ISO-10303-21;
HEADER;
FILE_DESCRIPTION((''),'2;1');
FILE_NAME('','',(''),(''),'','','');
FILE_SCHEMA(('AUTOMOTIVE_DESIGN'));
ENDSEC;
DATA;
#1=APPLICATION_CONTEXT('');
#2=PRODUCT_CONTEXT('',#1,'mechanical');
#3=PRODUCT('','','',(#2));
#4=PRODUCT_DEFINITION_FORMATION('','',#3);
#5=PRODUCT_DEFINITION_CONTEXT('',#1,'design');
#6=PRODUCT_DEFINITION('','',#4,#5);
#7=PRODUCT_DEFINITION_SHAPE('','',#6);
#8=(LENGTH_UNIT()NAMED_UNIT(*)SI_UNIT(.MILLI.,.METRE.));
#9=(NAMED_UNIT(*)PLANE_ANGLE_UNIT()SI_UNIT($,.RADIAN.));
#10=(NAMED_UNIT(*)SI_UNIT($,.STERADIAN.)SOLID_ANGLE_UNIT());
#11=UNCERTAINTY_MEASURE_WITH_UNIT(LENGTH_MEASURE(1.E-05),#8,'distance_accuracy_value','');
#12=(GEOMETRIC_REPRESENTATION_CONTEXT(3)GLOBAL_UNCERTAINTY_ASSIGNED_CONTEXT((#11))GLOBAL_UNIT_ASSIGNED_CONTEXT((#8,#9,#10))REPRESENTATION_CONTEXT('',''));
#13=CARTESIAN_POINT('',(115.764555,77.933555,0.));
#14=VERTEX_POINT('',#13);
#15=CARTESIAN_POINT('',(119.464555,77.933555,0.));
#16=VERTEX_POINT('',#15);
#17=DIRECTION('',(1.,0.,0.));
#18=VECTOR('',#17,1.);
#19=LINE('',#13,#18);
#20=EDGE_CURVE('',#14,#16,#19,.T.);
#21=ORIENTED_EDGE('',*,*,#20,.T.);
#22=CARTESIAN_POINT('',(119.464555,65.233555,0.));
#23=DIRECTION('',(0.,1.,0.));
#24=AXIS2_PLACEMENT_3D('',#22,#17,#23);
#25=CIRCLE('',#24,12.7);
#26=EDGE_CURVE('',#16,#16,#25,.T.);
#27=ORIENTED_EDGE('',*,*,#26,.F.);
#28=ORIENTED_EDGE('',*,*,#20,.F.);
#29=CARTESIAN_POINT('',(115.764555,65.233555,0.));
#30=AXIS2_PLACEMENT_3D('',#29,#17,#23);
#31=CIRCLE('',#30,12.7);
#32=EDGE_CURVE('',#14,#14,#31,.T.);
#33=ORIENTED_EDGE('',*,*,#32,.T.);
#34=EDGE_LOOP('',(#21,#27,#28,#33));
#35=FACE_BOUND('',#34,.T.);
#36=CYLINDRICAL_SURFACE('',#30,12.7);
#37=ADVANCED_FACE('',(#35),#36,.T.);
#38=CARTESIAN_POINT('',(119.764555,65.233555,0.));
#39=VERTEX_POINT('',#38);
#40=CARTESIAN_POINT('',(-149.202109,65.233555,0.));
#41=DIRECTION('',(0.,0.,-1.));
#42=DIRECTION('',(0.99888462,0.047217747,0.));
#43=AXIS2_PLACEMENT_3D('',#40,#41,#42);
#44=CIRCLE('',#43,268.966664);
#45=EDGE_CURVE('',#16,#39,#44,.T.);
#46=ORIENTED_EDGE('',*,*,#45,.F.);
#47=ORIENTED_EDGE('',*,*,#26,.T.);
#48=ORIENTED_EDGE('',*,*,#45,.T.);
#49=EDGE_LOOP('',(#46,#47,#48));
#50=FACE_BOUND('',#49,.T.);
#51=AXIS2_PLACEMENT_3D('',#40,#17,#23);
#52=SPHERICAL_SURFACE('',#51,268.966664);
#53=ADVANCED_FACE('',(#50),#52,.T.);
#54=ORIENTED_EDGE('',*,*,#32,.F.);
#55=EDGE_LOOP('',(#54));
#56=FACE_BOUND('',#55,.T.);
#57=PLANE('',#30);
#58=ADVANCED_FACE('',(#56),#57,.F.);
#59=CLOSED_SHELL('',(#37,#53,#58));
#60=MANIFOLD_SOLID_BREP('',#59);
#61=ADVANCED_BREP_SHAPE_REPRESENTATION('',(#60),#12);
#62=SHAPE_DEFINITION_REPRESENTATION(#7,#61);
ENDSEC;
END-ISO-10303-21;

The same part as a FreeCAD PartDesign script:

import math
import FreeCAD as App
import Part
import Sketcher
from FreeCAD import Vector

doc = App.newDocument("Part")
body = doc.addObject("PartDesign::Body", "Body")

# Sketch on XY plane
sketch1 = doc.addObject("Sketcher::SketchObject", "Sketch")
body.addObject(sketch1)
sketch1.AttachmentSupport = (doc.XY_Plane, [""])
sketch1.MapMode = "FlatFace"
sketch1.addGeometry(Part.LineSegment(Vector(115.8, 77.9, 0), Vector(115.8, 65.2, 0)), False)
sketch1.addGeometry(Part.LineSegment(Vector(115.8, 65.2, 0), Vector(119.8, 65.2, 0)), False)
sketch1.addGeometry(Part.ArcOfCircle(Part.Circle(Vector(-149.2, 65.2, 0), Vector(0, 0, 1), 269), math.radians(0), math.radians(2.71)), False)
sketch1.addGeometry(Part.LineSegment(Vector(119.5, 77.9, 0), Vector(115.8, 77.9, 0)), False)
sketch1.addGeometry(Part.LineSegment(Vector(-149.2, 65.2, 0), Vector(119.8, 65.2, 0)), True)  # axis
sketch1.addConstraint(Sketcher.Constraint("Coincident", 0, 2, 1, 1))
sketch1.addConstraint(Sketcher.Constraint("Coincident", 1, 2, 2, 1))
sketch1.addConstraint(Sketcher.Constraint("Coincident", 2, 2, 3, 1))
sketch1.addConstraint(Sketcher.Constraint("Coincident", 3, 2, 0, 1))
sketch1.addConstraint(Sketcher.Constraint("Vertical", 0))
sketch1.addConstraint(Sketcher.Constraint("Horizontal", 1))
sketch1.addConstraint(Sketcher.Constraint("Horizontal", 3))
sketch1.addConstraint(Sketcher.Constraint("Horizontal", 4))
sketch1.addConstraint(Sketcher.Constraint("Coincident", 4, 1, 2, 3))
sketch1.addConstraint(Sketcher.Constraint("Coincident", 4, 2, 1, 2))
sketch1.addConstraint(Sketcher.Constraint("DistanceX", 1, 1, 1, 2, 4.0))
sketch1.addConstraint(Sketcher.Constraint("DistanceX", 3, 2, 3, 1, 3.7))
sketch1.addConstraint(Sketcher.Constraint("DistanceY", 0, 2, 0, 1, 12.7))
sketch1.addConstraint(Sketcher.Constraint("DistanceX", 2, 3, -1, 1, 149.202109))
sketch1.addConstraint(Sketcher.Constraint("DistanceY", -1, 1, 2, 3, 65.233555))
revolution = doc.addObject("PartDesign::Revolution", "Revolution")
body.addObject(revolution)
revolution.Profile = sketch1
revolution.ReferenceAxis = (sketch1, ["Axis0"])
revolution.Angle = 360

doc.recompute()
